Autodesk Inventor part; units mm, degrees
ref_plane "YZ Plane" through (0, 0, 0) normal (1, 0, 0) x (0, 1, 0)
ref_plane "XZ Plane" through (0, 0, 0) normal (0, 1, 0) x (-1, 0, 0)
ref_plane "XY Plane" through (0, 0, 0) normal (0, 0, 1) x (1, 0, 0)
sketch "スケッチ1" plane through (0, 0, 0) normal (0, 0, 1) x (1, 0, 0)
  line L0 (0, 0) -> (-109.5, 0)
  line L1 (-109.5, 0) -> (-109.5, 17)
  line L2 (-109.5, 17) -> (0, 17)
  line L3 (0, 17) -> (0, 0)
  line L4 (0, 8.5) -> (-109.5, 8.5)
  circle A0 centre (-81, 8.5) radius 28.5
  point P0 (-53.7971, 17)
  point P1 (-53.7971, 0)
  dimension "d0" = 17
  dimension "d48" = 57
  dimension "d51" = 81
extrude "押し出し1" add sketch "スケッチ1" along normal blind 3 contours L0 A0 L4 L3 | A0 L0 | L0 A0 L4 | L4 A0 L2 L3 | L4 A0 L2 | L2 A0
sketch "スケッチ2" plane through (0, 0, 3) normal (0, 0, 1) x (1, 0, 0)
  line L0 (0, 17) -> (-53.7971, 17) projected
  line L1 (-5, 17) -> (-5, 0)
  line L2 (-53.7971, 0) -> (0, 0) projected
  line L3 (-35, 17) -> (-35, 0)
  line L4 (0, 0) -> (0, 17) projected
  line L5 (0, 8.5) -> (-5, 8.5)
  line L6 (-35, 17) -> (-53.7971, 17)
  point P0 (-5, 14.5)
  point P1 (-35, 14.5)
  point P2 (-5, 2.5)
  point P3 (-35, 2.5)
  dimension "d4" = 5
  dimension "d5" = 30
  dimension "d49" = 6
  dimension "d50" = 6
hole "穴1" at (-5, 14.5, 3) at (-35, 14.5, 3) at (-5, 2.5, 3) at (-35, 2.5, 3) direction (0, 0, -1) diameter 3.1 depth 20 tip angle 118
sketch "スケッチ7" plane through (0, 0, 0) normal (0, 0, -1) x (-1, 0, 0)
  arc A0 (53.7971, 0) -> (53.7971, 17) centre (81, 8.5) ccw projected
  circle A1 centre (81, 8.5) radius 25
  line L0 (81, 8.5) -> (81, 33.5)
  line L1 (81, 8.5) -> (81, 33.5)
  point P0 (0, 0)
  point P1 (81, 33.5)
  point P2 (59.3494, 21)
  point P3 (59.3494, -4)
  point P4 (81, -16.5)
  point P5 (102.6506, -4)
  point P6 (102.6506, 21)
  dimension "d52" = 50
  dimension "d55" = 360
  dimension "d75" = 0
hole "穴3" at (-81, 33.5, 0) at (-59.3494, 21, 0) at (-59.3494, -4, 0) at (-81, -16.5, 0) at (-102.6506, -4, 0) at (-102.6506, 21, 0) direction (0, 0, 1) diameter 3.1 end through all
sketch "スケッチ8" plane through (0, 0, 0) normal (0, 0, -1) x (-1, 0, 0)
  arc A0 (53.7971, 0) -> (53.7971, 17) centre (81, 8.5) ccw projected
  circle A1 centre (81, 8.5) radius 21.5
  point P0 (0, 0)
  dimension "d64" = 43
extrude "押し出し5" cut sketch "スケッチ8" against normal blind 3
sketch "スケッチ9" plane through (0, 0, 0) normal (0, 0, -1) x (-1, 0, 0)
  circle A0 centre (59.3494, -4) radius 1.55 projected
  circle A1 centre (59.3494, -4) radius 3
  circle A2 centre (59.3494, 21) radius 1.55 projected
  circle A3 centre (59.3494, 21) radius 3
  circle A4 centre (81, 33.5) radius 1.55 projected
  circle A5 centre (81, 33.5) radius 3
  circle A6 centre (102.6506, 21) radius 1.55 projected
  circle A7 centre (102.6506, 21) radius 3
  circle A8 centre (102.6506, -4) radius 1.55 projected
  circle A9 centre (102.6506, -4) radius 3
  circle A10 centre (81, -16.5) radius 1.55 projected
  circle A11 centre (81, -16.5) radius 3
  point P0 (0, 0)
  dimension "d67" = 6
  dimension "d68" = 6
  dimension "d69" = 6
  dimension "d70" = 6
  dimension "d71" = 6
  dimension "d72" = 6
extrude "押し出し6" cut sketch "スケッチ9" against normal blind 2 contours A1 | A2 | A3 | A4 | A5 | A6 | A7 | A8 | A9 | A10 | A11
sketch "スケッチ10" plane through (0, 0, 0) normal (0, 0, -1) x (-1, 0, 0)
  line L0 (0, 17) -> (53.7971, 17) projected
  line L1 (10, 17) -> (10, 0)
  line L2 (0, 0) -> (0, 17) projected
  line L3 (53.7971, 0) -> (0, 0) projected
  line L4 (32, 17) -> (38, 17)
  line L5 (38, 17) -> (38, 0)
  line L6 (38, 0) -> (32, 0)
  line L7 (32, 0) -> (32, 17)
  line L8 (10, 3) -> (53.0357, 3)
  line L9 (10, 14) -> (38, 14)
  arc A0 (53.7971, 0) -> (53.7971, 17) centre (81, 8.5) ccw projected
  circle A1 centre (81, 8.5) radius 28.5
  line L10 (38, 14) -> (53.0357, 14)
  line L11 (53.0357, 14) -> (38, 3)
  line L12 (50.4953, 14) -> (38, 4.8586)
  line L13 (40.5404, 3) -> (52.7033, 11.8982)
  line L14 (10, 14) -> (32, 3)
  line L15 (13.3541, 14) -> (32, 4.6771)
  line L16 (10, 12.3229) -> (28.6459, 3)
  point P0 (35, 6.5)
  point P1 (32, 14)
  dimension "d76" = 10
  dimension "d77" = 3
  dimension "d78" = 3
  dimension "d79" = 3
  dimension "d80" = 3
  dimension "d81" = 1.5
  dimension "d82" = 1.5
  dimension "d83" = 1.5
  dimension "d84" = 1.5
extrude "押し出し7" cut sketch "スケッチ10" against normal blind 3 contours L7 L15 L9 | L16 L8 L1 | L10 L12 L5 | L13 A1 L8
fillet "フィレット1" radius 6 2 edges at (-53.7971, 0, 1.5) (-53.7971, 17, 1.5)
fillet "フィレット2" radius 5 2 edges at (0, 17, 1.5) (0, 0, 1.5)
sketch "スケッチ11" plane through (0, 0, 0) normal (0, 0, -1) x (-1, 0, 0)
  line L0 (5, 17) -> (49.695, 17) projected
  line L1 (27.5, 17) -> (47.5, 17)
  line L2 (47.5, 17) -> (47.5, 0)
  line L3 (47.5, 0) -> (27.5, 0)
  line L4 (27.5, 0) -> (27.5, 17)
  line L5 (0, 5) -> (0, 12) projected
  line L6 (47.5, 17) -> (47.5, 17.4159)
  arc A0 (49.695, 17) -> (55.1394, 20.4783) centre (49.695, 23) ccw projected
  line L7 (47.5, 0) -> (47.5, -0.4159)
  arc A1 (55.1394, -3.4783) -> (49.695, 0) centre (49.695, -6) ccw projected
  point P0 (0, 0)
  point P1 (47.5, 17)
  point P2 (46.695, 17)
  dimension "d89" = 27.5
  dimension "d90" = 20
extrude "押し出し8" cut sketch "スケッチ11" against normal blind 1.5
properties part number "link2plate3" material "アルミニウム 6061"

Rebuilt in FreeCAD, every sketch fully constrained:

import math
import FreeCAD as App
import Part
import Sketcher
Q = App.Units.Quantity


def edges_at(feature, points):
    """Names of the edges that pass closest to the given points."""
    edges = feature.Shape.Edges
    near = lambda p: min(range(len(edges)), key=lambda i: edges[i].distToShape(Part.Vertex(*p))[0])
    return sorted({f"Edge{near(p) + 1}" for p in points})


def add_polygon(sketch, points):
    """Adds a closed chain of lines whose ends are joined by coincident constraints."""
    first, n = sketch.GeometryCount, len(points)
    for a, b in zip(points, points[1:] + points[:1]):
        sketch.addGeometry(Part.LineSegment(App.Vector(*a, 0), App.Vector(*b, 0)), False)
    for i in range(n):
        sketch.addConstraint(Sketcher.Constraint("Coincident", first + i, 2, first + (i + 1) % n, 1))

doc = App.newDocument("Part")
body = doc.addObject("PartDesign::Body", "Body")

# Sketch on XY plane
sketch1 = body.newObject("Sketcher::SketchObject", "Sketch")
sketch1.AttachmentSupport = (doc.getObject("XY_Plane"), [""])
sketch1.MapMode = "FlatFace"
sketch1.addGeometry([
    Part.LineSegment(App.Vector(-54, 0, 0), App.Vector(0, 0, 0)),
    Part.LineSegment(App.Vector(0, 0, 0), App.Vector(0, 17, 0)),
    Part.LineSegment(App.Vector(0, 17, 0), App.Vector(-54, 17, 0)),
    Part.ArcOfCircle(Part.Circle(App.Vector(-81, 8, 0), App.Vector(0, 0, 1), 28), math.radians(17), math.radians(343)),
], False)
sketch1.addConstraint([
    Sketcher.Constraint("Coincident", 0, 2, 1, 1),
    Sketcher.Constraint("Coincident", 1, 2, 2, 1),
    Sketcher.Constraint("Coincident", 2, 2, 3, 1),
    Sketcher.Constraint("Coincident", 3, 2, 0, 1),
    Sketcher.Constraint("Horizontal", 0),
    Sketcher.Constraint("Vertical", 1),
    Sketcher.Constraint("Horizontal", 2),
    Sketcher.Constraint("Coincident", 0, 2, -1, 1),
    Sketcher.Constraint("Vertical", 2, 2, 3, 2),
    Sketcher.Constraint("Radius", 3, Q("28.5 mm")),
    Sketcher.Constraint("DistanceY", 1, 1, 1, 2, Q("17 mm")),
    Sketcher.Constraint("DistanceX", 3, 3, -1, 1, Q("81 mm")),
])
pad1 = body.newObject("PartDesign::Pad", "Pad")
pad1.Profile = sketch1
pad1.Length = 3

# Sketch on XY plane
sketch2 = body.newObject("Sketcher::SketchObject", "Sketch001")
sketch2.AttachmentSupport = (doc.getObject("XY_Plane"), [""])
sketch2.MapMode = "FlatFace"
sketch2.AttachmentOffset = App.Placement(App.Vector(0, 0, 3), App.Rotation())
sketch2.addGeometry([
    Part.Circle(App.Vector(-5, 14.5, 0), App.Vector(0, 0, 1), 1.6),
    Part.Circle(App.Vector(-35, 14.5, 0), App.Vector(0, 0, 1), 1.6),
    Part.Circle(App.Vector(-5, 2.5, 0), App.Vector(0, 0, 1), 1.6),
    Part.Circle(App.Vector(-35, 2.5, 0), App.Vector(0, 0, 1), 1.6),
], False)
sketch2.addConstraint([
    Sketcher.Constraint("Equal", 0, 1),
    Sketcher.Constraint("Equal", 1, 2),
    Sketcher.Constraint("Equal", 2, 3),
    Sketcher.Constraint("Horizontal", 0, 3, 1, 3),
    Sketcher.Constraint("Horizontal", 2, 3, 3, 3),
    Sketcher.Constraint("Vertical", 0, 3, 2, 3),
    Sketcher.Constraint("Vertical", 1, 3, 3, 3),
    Sketcher.Constraint("Diameter", 0, Q("3.1 mm")),
    Sketcher.Constraint("DistanceX", 0, 3, -1, 1, Q("5 mm")),
    Sketcher.Constraint("DistanceX", 1, 3, -1, 1, Q("35 mm")),
    Sketcher.Constraint("DistanceY", 2, 3, 0, 3, Q("12 mm")),
    Sketcher.Constraint("DistanceY", -1, 1, 0, 3, Q("14.5 mm")),
])
doc.recompute()
hole = body.newObject("PartDesign::Hole", "Hole")
hole.Profile = sketch2
hole.ThreadType = "None"
hole.Diameter = 3.1
hole.DepthType = "Dimension"
hole.Depth = 20
hole.DrillPoint = "Angled"
hole.DrillPointAngle = 118

# Sketch on XY plane
sketch3 = body.newObject("Sketcher::SketchObject", "Sketch002")
sketch3.AttachmentSupport = (doc.getObject("XY_Plane"), [""])
sketch3.MapMode = "FlatFace"
sketch3.addGeometry([
    Part.Circle(App.Vector(-81, 33.5, 0), App.Vector(0, 0, 1), 1.6),  # 0
    Part.Circle(App.Vector(-59.3, 21, 0), App.Vector(0, 0, 1), 1.6),  # 1
    Part.Circle(App.Vector(-59.3, -4, 0), App.Vector(0, 0, 1), 1.6),  # 2
    Part.Circle(App.Vector(-81, -16.5, 0), App.Vector(0, 0, 1), 1.6),  # 3
    Part.Circle(App.Vector(-102.7, -4, 0), App.Vector(0, 0, 1), 1.6),  # 4
    Part.Circle(App.Vector(-102.7, 21, 0), App.Vector(0, 0, 1), 1.6),  # 5
], False)
sketch3.addConstraint([
    Sketcher.Constraint("Equal", 0, 1),
    Sketcher.Constraint("Equal", 1, 2),
    Sketcher.Constraint("Equal", 2, 3),
    Sketcher.Constraint("Equal", 3, 4),
    Sketcher.Constraint("Equal", 4, 5),
    Sketcher.Constraint("Horizontal", 2, 3, 4, 3),
    Sketcher.Constraint("Horizontal", 1, 3, 5, 3),
    Sketcher.Constraint("Vertical", 1, 3, 2, 3),
    Sketcher.Constraint("Vertical", 0, 3, 3, 3),
    Sketcher.Constraint("Vertical", 4, 3, 5, 3),
    Sketcher.Constraint("Diameter", 0, Q("3.1 mm")),
    Sketcher.Constraint("DistanceX", 0, 3, -1, 1, Q("81 mm")),
    Sketcher.Constraint("DistanceY", -1, 1, 1, 3, Q("21 mm")),
    Sketcher.Constraint("DistanceY", 2, 3, -1, 1, Q("4 mm")),
    Sketcher.Constraint("DistanceY", 3, 3, 0, 3, Q("50 mm")),
    Sketcher.Constraint("DistanceY", -1, 1, 0, 3, Q("33.5 mm")),
    Sketcher.Constraint("DistanceX", 1, 3, -1, 1, Q("59.3494 mm")),
    Sketcher.Constraint("DistanceX", 4, 3, -1, 1, Q("102.6506 mm")),
])
doc.recompute()
hole2 = body.newObject("PartDesign::Hole", "Hole001")
hole2.Profile = sketch3
hole2.ThreadType = "None"
hole2.Diameter = 3.1
hole2.DepthType = "ThroughAll"
hole2.Reversed = True

# Sketch on XY plane
sketch4 = body.newObject("Sketcher::SketchObject", "Sketch003")
sketch4.AttachmentSupport = (doc.getObject("XY_Plane"), [""])
sketch4.MapMode = "FlatFace"
sketch4.addGeometry(Part.Circle(App.Vector(-81, 8, 0), App.Vector(0, 0, 1), 22), False)
sketch4.addConstraint([
    Sketcher.Constraint("Diameter", 0, Q("43 mm")),
    Sketcher.Constraint("DistanceX", 0, 3, -1, 1, Q("81 mm")),
    Sketcher.Constraint("DistanceY", -1, 1, 0, 3, Q("8.5 mm")),
])
pocket1 = body.newObject("PartDesign::Pocket", "Pocket")
pocket1.Profile = sketch4
pocket1.Length = 3
pocket1.Reversed = True

# Sketch on XY plane
sketch5 = body.newObject("Sketcher::SketchObject", "Sketch004")
sketch5.AttachmentSupport = (doc.getObject("XY_Plane"), [""])
sketch5.MapMode = "FlatFace"
sketch5.addGeometry([
    Part.Circle(App.Vector(-59.3, -4, 0), App.Vector(0, 0, 1), 3),  # 0
    Part.Circle(App.Vector(-59.3, -4, 0), App.Vector(0, 0, 1), 1.6),  # 1
    Part.Circle(App.Vector(-59.3, 21, 0), App.Vector(0, 0, 1), 3),  # 2
    Part.Circle(App.Vector(-81, 33.5, 0), App.Vector(0, 0, 1), 3),  # 3
    Part.Circle(App.Vector(-102.7, 21, 0), App.Vector(0, 0, 1), 3),  # 4
    Part.Circle(App.Vector(-102.7, -4, 0), App.Vector(0, 0, 1), 3),  # 5
    Part.Circle(App.Vector(-81, -16.5, 0), App.Vector(0, 0, 1), 3),  # 6
], False)
sketch5.addConstraint([
    Sketcher.Constraint("Coincident", 1, 3, 0, 3),
    Sketcher.Constraint("Equal", 0, 2),
    Sketcher.Constraint("Equal", 2, 3),
    Sketcher.Constraint("Equal", 3, 4),
    Sketcher.Constraint("Equal", 4, 5),
    Sketcher.Constraint("Equal", 5, 6),
    Sketcher.Constraint("Horizontal", 2, 3, 4, 3),
    Sketcher.Constraint("Horizontal", 1, 3, 5, 3),
    Sketcher.Constraint("Vertical", 1, 3, 2, 3),
    Sketcher.Constraint("Vertical", 4, 3, 5, 3),
    Sketcher.Constraint("Vertical", 3, 3, 6, 3),
    Sketcher.Constraint("Diameter", 0, Q("6 mm")),
    Sketcher.Constraint("Diameter", 1, Q("3.1 mm")),
    Sketcher.Constraint("DistanceY", 0, 3, -1, 1, Q("4 mm")),
    Sketcher.Constraint("DistanceY", -1, 1, 2, 3, Q("21 mm")),
    Sketcher.Constraint("DistanceX", 3, 3, -1, 1, Q("81 mm")),
    Sketcher.Constraint("DistanceY", -1, 1, 3, 3, Q("33.5 mm")),
    Sketcher.Constraint("DistanceY", 6, 3, -1, 1, Q("16.5 mm")),
    Sketcher.Constraint("DistanceX", 0, 3, -1, 1, Q("59.3494 mm")),
    Sketcher.Constraint("DistanceX", 4, 3, -1, 1, Q("102.6506 mm")),
])
pocket2 = body.newObject("PartDesign::Pocket", "Pocket001")
pocket2.Profile = sketch5
pocket2.Length = 2
pocket2.Reversed = True

# Sketch on XY plane
sketch6 = body.newObject("Sketcher::SketchObject", "Sketch005")
sketch6.AttachmentSupport = (doc.getObject("XY_Plane"), [""])
sketch6.MapMode = "FlatFace"
add_polygon(sketch6, [(-32, 5), (-32, 14), (-13, 14)])  # lines 0-2
add_polygon(sketch6, [(-29, 3), (-10, 12), (-10, 3)])  # lines 3-5
add_polygon(sketch6, [(-50, 14), (-38, 14), (-38, 5)])  # lines 6-8
sketch6.addGeometry(Part.LineSegment(App.Vector(-53, 12, 0), App.Vector(-41, 3, 0)), False)  # 9
sketch6.addGeometry(Part.LineSegment(App.Vector(-41, 3, 0), App.Vector(-53, 3, 0)), False)  # 10
sketch6.addGeometry(Part.ArcOfCircle(Part.Circle(App.Vector(-81, 8, 0), App.Vector(0, 0, 1), 28), math.radians(-11.13), math.radians(6.85)), False)  # 11
sketch6.addConstraint([
    Sketcher.Constraint("Coincident", 9, 2, 10, 1),
    Sketcher.Constraint("Coincident", 10, 2, 11, 1),
    Sketcher.Constraint("Coincident", 11, 2, 9, 1),
    Sketcher.Constraint("Vertical", 0),
    Sketcher.Constraint("Horizontal", 1),
    Sketcher.Constraint("Vertical", 4),
    Sketcher.Constraint("Horizontal", 5),
    Sketcher.Constraint("Horizontal", 6),
    Sketcher.Constraint("Vertical", 7),
    Sketcher.Constraint("Horizontal", 10),
    Sketcher.Constraint("Parallel", 2, 3),
    Sketcher.Constraint("Parallel", 8, 9),
    Sketcher.Constraint("Horizontal", 1, 2, 6, 2),
    Sketcher.Constraint("Horizontal", 5, 2, 9, 2),
    Sketcher.Constraint("Equal", 1, 5),
    Sketcher.Constraint("Equal", 6, 10),
    Sketcher.Constraint("DistanceX", 3, 2, -1, 1, Q("10 mm")),
    Sketcher.Constraint("DistanceY", -1, 1, 4, 2, Q("3 mm")),
    Sketcher.Constraint("Radius", 11, Q("28.5 mm")),
    Sketcher.Constraint("DistanceX", 11, 3, -1, 1, Q("81 mm")),
    Sketcher.Constraint("DistanceX", 0, 2, -1, 1, Q("32 mm")),
    Sketcher.Constraint("DistanceY", -1, 1, 0, 2, Q("14 mm")),
    Sketcher.Constraint("DistanceX", 6, 2, -1, 1, Q("38 mm")),
    Sketcher.Constraint("DistanceY", -1, 1, 11, 3, Q("8.5 mm")),
    Sketcher.Constraint("DistanceX", 1, 1, 1, 2, Q("18.646 mm")),
    Sketcher.Constraint("DistanceY", 0, 1, 0, 2, Q("9.323 mm")),
    Sketcher.Constraint("DistanceX", 6, 1, 6, 2, Q("12.4953 mm")),
    Sketcher.Constraint("DistanceY", 7, 2, 7, 1, Q("9.1414 mm")),
])
pocket3 = body.newObject("PartDesign::Pocket", "Pocket002")
pocket3.Profile = sketch6
pocket3.Length = 3
pocket3.Reversed = True
doc.recompute()

fillet = body.newObject("PartDesign::Fillet", "Fillet")
fillet.Base = (pocket3, edges_at(pocket3, [(-53.797, 0, 1.5), (-53.797, 17, 1.5)]))
fillet.Radius = 6
doc.recompute()

fillet2 = body.newObject("PartDesign::Fillet", "Fillet001")
fillet2.Base = (fillet, edges_at(fillet, [(0, 17, 1.5), (0, 0, 1.5)]))
fillet2.Radius = 5

# Sketch on XY plane
sketch7 = body.newObject("Sketcher::SketchObject", "Sketch006")
sketch7.AttachmentSupport = (doc.getObject("XY_Plane"), [""])
sketch7.MapMode = "FlatFace"
add_polygon(sketch7, [(-48, 17), (-28, 17), (-28, 0), (-48, 0)])  # lines 0-3
sketch7.addConstraint([
    Sketcher.Constraint("Horizontal", 0),
    Sketcher.Constraint("Vertical", 1),
    Sketcher.Constraint("Horizontal", 2),
    Sketcher.Constraint("Vertical", 3),
    Sketcher.Constraint("PointOnObject", 1, 2, -1),
    Sketcher.Constraint("DistanceX", 0, 1, 0, 2, Q("20 mm")),
    Sketcher.Constraint("DistanceX", 0, 2, -1, 1, Q("27.5 mm")),
    Sketcher.Constraint("DistanceY", 1, 2, 1, 1, Q("17 mm")),
])
pocket4 = body.newObject("PartDesign::Pocket", "Pocket003")
pocket4.Profile = sketch7
pocket4.Length = 1.5
pocket4.Reversed = True

doc.recompute()
